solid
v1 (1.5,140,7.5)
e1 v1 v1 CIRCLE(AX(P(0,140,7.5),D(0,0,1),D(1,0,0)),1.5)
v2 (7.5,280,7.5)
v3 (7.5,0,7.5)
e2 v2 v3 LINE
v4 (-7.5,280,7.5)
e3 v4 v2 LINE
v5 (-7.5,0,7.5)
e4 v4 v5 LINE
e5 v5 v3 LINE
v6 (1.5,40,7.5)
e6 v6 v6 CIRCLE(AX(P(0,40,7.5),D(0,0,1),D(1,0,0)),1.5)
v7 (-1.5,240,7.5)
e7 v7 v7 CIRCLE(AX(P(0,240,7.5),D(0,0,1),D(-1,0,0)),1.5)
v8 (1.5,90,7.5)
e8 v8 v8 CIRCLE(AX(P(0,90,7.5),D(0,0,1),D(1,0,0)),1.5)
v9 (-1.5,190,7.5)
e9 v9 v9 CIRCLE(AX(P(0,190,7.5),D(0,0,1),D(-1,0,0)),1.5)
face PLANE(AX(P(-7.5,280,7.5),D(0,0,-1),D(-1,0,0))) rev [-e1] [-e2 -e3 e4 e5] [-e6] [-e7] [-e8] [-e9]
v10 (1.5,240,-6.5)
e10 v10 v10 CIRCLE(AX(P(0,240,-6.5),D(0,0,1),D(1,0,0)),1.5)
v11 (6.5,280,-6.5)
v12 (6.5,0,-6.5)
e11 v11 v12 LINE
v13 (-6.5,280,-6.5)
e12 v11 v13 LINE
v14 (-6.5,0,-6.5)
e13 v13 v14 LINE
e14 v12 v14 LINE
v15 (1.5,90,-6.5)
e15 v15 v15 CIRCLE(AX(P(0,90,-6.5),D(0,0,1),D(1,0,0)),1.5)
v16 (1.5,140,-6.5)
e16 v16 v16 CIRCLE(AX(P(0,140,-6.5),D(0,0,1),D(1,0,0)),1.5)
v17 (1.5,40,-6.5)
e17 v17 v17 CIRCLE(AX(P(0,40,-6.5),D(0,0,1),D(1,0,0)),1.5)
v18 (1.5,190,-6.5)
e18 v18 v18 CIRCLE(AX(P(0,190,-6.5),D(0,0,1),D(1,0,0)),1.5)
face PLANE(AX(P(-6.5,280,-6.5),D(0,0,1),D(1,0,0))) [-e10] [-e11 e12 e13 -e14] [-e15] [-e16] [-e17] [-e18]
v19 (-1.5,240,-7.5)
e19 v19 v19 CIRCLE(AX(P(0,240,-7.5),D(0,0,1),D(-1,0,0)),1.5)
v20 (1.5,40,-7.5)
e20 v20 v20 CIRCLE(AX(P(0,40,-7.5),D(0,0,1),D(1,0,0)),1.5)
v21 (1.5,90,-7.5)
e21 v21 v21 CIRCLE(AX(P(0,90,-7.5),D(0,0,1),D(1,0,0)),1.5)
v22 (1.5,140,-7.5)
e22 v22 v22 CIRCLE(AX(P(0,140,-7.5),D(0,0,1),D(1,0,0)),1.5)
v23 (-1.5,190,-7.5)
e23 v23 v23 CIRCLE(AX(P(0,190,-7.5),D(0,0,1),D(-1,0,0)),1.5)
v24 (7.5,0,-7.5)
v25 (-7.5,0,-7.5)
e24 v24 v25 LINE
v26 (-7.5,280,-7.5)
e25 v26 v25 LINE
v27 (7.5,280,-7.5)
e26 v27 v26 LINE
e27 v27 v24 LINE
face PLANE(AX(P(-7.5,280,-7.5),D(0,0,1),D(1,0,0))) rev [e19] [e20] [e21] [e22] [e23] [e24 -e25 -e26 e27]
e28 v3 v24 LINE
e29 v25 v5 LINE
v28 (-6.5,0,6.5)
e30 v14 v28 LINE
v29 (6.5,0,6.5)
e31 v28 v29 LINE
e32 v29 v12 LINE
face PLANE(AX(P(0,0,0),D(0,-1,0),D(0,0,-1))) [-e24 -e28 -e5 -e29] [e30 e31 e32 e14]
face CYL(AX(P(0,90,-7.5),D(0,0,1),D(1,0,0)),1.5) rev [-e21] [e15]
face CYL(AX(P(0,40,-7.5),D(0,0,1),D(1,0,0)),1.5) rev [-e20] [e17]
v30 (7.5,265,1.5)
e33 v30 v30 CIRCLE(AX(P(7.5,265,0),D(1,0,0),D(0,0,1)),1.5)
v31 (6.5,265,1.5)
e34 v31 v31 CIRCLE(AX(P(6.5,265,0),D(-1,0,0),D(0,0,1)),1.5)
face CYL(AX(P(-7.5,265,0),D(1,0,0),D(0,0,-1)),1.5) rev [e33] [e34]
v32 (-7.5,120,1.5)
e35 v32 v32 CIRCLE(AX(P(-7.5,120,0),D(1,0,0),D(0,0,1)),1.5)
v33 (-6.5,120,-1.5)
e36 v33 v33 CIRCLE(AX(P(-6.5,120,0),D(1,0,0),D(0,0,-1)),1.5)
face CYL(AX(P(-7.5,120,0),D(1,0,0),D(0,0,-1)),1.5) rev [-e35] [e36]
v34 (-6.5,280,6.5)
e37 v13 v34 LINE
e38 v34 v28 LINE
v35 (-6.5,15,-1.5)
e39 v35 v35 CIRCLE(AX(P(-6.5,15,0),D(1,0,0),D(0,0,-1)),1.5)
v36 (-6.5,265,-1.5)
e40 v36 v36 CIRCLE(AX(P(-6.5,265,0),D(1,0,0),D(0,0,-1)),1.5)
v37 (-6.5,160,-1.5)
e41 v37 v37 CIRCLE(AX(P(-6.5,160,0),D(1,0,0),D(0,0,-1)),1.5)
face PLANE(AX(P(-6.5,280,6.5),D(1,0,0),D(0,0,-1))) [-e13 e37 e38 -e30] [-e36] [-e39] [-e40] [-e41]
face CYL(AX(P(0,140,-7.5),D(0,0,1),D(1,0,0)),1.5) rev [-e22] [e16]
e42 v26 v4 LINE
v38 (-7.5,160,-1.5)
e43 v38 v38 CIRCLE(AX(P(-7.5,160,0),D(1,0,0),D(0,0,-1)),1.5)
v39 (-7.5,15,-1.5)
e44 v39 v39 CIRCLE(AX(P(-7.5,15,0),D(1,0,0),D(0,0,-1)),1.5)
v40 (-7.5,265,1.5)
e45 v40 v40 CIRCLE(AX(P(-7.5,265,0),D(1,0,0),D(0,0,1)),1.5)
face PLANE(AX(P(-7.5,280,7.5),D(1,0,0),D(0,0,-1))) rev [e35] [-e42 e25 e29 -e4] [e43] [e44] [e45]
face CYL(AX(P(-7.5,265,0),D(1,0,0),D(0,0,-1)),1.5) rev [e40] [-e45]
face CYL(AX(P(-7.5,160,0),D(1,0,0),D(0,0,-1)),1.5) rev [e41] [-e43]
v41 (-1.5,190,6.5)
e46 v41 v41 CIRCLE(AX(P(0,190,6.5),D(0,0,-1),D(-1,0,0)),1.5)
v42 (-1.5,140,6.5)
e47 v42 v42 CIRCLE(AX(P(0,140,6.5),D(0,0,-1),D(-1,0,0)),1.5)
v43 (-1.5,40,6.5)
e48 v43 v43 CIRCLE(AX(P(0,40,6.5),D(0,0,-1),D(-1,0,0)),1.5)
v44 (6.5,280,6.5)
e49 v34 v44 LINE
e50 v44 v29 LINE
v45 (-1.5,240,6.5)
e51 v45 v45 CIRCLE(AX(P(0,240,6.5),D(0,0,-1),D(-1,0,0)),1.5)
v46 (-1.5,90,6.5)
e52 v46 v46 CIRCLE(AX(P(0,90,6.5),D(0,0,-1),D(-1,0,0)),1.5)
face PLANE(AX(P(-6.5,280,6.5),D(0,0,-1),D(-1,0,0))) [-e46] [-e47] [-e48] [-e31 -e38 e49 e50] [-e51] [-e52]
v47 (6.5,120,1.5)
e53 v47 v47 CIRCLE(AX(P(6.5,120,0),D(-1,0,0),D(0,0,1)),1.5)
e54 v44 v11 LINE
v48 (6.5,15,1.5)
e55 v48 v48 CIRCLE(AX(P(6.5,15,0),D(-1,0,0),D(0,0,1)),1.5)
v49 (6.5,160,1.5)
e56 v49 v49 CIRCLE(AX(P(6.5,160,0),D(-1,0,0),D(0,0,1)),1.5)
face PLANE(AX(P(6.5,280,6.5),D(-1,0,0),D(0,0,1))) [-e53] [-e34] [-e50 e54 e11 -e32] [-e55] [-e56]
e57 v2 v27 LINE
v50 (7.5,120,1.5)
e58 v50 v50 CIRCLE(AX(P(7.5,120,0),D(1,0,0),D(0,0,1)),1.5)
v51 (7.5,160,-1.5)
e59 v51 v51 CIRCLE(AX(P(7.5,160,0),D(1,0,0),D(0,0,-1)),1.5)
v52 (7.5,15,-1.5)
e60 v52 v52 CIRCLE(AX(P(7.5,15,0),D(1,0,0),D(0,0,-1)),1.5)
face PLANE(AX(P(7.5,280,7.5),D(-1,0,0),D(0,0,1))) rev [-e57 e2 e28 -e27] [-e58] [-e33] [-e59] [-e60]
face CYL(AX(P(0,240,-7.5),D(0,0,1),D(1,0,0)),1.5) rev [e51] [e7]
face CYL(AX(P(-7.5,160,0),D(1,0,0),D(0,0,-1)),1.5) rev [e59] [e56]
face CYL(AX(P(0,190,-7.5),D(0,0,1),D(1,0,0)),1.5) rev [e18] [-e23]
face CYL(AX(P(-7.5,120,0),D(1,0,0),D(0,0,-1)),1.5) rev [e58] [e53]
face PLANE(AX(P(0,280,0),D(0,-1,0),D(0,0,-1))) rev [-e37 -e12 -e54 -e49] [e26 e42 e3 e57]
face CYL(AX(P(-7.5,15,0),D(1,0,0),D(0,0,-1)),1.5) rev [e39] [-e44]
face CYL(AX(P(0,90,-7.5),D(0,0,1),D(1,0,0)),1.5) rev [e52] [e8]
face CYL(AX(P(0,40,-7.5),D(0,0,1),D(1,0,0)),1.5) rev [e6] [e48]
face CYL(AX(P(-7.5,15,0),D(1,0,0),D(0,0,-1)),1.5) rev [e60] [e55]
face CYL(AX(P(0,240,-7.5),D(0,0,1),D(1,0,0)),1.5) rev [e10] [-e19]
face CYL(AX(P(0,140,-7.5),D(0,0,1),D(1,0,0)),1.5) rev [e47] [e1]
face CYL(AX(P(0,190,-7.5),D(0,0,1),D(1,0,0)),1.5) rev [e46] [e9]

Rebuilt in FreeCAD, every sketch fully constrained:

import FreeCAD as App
import Part
import Sketcher
Q = App.Units.Quantity

doc = App.newDocument("Part")
body = doc.addObject("PartDesign::Body", "Body")

sketch1 = body.newObject("Sketcher::SketchObject", "Sketch")
sketch1.AttachmentSupport = (doc.getObject("XZ_Plane"), [""])
sketch1.MapMode = "FlatFace"
sketch1.addGeometry([
    Part.LineSegment(App.Vector(-8, -8, 0), App.Vector(-8, 8, 0)),
    Part.LineSegment(App.Vector(-8, 8, 0), App.Vector(8, 8, 0)),
    Part.LineSegment(App.Vector(8, 8, 0), App.Vector(8, -8, 0)),
    Part.LineSegment(App.Vector(8, -8, 0), App.Vector(-8, -8, 0)),
    Part.LineSegment(App.Vector(6, 6, 0), App.Vector(-6, 6, 0)),
    Part.LineSegment(App.Vector(-6, 6, 0), App.Vector(-6, -6, 0)),
    Part.LineSegment(App.Vector(-6, -6, 0), App.Vector(6, -6, 0)),
    Part.LineSegment(App.Vector(6, -6, 0), App.Vector(6, 6, 0)),
], False)
sketch1.addConstraint([
    Sketcher.Constraint("Coincident", 0, 2, 1, 1),
    Sketcher.Constraint("Coincident", 1, 2, 2, 1),
    Sketcher.Constraint("Coincident", 2, 2, 3, 1),
    Sketcher.Constraint("Coincident", 3, 2, 0, 1),
    Sketcher.Constraint("Coincident", 4, 2, 5, 1),
    Sketcher.Constraint("Coincident", 5, 2, 6, 1),
    Sketcher.Constraint("Coincident", 6, 2, 7, 1),
    Sketcher.Constraint("Coincident", 7, 2, 4, 1),
    Sketcher.Constraint("Vertical", 0),
    Sketcher.Constraint("Horizontal", 1),
    Sketcher.Constraint("Vertical", 2),
    Sketcher.Constraint("Horizontal", 3),
    Sketcher.Constraint("Horizontal", 4),
    Sketcher.Constraint("Vertical", 5),
    Sketcher.Constraint("Horizontal", 6),
    Sketcher.Constraint("Vertical", 7),
    Sketcher.Constraint("Symmetric", 0, 2, 2, 2, -1, 1),
    Sketcher.Constraint("Symmetric", 4, 2, 6, 2, -1, 1),
    Sketcher.Constraint("Equal", 3, 0),
    Sketcher.Constraint("Equal", 6, 5),
    Sketcher.Constraint("DistanceX", 1, 1, 1, 2, Q("15 mm")),
    Sketcher.Constraint("DistanceX", 4, 2, 4, 1, Q("13 mm")),
])
pad1 = body.newObject("PartDesign::Pad", "Pad")
pad1.Profile = sketch1
pad1.Length = 280
pad1.Reversed = True

sketch2 = body.newObject("Sketcher::SketchObject", "Sketch001")
sketch2.AttachmentSupport = (doc.getObject("XY_Plane"), [""])
sketch2.MapMode = "FlatFace"
sketch2.AttachmentOffset = App.Placement(App.Vector(0, 0, 7.5), App.Rotation())
sketch2.addGeometry([
    Part.Circle(App.Vector(0, 40, 0), App.Vector(0, 0, 1), 1.5),
    Part.Circle(App.Vector(0, 140, 0), App.Vector(0, 0, 1), 1.5),
    Part.Circle(App.Vector(0, 90, 0), App.Vector(0, 0, 1), 1.5),
    Part.Circle(App.Vector(0, 240, 0), App.Vector(0, 0, 1), 1.5),
    Part.Circle(App.Vector(0, 190, 0), App.Vector(0, 0, 1), 1.5),
], False)
sketch2.addConstraint([
    Sketcher.Constraint("Equal", 0, 1),
    Sketcher.Constraint("Equal", 1, 2),
    Sketcher.Constraint("Equal", 2, 3),
    Sketcher.Constraint("Equal", 3, 4),
    Sketcher.Constraint("PointOnObject", 0, 3, -2),
    Sketcher.Constraint("PointOnObject", 1, 3, -2),
    Sketcher.Constraint("PointOnObject", 2, 3, -2),
    Sketcher.Constraint("PointOnObject", 3, 3, -2),
    Sketcher.Constraint("PointOnObject", 4, 3, -2),
    Sketcher.Constraint("Diameter", 0, Q("3 mm")),
    Sketcher.Constraint("DistanceY", -1, 1, 0, 3, Q("40 mm")),
    Sketcher.Constraint("DistanceY", -1, 1, 1, 3, Q("140 mm")),
    Sketcher.Constraint("DistanceY", -1, 1, 2, 3, Q("90 mm")),
    Sketcher.Constraint("DistanceY", -1, 1, 3, 3, Q("240 mm")),
    Sketcher.Constraint("DistanceY", -1, 1, 4, 3, Q("190 mm")),
])
pocket1 = body.newObject("PartDesign::Pocket", "Pocket")
pocket1.Profile = sketch2
pocket1.Type = "ThroughAll"

sketch3 = body.newObject("Sketcher::SketchObject", "Sketch002")
sketch3.AttachmentSupport = (doc.getObject("YZ_Plane"), [""])
sketch3.MapMode = "FlatFace"
sketch3.AttachmentOffset = App.Placement(App.Vector(0, 0, 7.5), App.Rotation())
sketch3.addGeometry([
    Part.Circle(App.Vector(160, 0, 0), App.Vector(0, 0, 1), 1.5),
    Part.Circle(App.Vector(120, 0, 0), App.Vector(0, 0, 1), 1.5),
    Part.Circle(App.Vector(15, 0, 0), App.Vector(0, 0, 1), 1.5),
    Part.Circle(App.Vector(265, 0, 0), App.Vector(0, 0, 1), 1.5),
], False)
sketch3.addConstraint([
    Sketcher.Constraint("Equal", 0, 1),
    Sketcher.Constraint("Equal", 1, 2),
    Sketcher.Constraint("Equal", 2, 3),
    Sketcher.Constraint("PointOnObject", 0, 3, -1),
    Sketcher.Constraint("PointOnObject", 1, 3, -1),
    Sketcher.Constraint("PointOnObject", 2, 3, -1),
    Sketcher.Constraint("PointOnObject", 3, 3, -1),
    Sketcher.Constraint("Diameter", 0, Q("3 mm")),
    Sketcher.Constraint("DistanceX", -1, 1, 0, 3, Q("160 mm")),
    Sketcher.Constraint("DistanceX", -1, 1, 1, 3, Q("120 mm")),
    Sketcher.Constraint("DistanceX", -1, 1, 2, 3, Q("15 mm")),
    Sketcher.Constraint("DistanceX", -1, 1, 3, 3, Q("265 mm")),
])
pocket2 = body.newObject("PartDesign::Pocket", "Pocket001")
pocket2.Profile = sketch3
pocket2.Type = "ThroughAll"

doc.recompute()
